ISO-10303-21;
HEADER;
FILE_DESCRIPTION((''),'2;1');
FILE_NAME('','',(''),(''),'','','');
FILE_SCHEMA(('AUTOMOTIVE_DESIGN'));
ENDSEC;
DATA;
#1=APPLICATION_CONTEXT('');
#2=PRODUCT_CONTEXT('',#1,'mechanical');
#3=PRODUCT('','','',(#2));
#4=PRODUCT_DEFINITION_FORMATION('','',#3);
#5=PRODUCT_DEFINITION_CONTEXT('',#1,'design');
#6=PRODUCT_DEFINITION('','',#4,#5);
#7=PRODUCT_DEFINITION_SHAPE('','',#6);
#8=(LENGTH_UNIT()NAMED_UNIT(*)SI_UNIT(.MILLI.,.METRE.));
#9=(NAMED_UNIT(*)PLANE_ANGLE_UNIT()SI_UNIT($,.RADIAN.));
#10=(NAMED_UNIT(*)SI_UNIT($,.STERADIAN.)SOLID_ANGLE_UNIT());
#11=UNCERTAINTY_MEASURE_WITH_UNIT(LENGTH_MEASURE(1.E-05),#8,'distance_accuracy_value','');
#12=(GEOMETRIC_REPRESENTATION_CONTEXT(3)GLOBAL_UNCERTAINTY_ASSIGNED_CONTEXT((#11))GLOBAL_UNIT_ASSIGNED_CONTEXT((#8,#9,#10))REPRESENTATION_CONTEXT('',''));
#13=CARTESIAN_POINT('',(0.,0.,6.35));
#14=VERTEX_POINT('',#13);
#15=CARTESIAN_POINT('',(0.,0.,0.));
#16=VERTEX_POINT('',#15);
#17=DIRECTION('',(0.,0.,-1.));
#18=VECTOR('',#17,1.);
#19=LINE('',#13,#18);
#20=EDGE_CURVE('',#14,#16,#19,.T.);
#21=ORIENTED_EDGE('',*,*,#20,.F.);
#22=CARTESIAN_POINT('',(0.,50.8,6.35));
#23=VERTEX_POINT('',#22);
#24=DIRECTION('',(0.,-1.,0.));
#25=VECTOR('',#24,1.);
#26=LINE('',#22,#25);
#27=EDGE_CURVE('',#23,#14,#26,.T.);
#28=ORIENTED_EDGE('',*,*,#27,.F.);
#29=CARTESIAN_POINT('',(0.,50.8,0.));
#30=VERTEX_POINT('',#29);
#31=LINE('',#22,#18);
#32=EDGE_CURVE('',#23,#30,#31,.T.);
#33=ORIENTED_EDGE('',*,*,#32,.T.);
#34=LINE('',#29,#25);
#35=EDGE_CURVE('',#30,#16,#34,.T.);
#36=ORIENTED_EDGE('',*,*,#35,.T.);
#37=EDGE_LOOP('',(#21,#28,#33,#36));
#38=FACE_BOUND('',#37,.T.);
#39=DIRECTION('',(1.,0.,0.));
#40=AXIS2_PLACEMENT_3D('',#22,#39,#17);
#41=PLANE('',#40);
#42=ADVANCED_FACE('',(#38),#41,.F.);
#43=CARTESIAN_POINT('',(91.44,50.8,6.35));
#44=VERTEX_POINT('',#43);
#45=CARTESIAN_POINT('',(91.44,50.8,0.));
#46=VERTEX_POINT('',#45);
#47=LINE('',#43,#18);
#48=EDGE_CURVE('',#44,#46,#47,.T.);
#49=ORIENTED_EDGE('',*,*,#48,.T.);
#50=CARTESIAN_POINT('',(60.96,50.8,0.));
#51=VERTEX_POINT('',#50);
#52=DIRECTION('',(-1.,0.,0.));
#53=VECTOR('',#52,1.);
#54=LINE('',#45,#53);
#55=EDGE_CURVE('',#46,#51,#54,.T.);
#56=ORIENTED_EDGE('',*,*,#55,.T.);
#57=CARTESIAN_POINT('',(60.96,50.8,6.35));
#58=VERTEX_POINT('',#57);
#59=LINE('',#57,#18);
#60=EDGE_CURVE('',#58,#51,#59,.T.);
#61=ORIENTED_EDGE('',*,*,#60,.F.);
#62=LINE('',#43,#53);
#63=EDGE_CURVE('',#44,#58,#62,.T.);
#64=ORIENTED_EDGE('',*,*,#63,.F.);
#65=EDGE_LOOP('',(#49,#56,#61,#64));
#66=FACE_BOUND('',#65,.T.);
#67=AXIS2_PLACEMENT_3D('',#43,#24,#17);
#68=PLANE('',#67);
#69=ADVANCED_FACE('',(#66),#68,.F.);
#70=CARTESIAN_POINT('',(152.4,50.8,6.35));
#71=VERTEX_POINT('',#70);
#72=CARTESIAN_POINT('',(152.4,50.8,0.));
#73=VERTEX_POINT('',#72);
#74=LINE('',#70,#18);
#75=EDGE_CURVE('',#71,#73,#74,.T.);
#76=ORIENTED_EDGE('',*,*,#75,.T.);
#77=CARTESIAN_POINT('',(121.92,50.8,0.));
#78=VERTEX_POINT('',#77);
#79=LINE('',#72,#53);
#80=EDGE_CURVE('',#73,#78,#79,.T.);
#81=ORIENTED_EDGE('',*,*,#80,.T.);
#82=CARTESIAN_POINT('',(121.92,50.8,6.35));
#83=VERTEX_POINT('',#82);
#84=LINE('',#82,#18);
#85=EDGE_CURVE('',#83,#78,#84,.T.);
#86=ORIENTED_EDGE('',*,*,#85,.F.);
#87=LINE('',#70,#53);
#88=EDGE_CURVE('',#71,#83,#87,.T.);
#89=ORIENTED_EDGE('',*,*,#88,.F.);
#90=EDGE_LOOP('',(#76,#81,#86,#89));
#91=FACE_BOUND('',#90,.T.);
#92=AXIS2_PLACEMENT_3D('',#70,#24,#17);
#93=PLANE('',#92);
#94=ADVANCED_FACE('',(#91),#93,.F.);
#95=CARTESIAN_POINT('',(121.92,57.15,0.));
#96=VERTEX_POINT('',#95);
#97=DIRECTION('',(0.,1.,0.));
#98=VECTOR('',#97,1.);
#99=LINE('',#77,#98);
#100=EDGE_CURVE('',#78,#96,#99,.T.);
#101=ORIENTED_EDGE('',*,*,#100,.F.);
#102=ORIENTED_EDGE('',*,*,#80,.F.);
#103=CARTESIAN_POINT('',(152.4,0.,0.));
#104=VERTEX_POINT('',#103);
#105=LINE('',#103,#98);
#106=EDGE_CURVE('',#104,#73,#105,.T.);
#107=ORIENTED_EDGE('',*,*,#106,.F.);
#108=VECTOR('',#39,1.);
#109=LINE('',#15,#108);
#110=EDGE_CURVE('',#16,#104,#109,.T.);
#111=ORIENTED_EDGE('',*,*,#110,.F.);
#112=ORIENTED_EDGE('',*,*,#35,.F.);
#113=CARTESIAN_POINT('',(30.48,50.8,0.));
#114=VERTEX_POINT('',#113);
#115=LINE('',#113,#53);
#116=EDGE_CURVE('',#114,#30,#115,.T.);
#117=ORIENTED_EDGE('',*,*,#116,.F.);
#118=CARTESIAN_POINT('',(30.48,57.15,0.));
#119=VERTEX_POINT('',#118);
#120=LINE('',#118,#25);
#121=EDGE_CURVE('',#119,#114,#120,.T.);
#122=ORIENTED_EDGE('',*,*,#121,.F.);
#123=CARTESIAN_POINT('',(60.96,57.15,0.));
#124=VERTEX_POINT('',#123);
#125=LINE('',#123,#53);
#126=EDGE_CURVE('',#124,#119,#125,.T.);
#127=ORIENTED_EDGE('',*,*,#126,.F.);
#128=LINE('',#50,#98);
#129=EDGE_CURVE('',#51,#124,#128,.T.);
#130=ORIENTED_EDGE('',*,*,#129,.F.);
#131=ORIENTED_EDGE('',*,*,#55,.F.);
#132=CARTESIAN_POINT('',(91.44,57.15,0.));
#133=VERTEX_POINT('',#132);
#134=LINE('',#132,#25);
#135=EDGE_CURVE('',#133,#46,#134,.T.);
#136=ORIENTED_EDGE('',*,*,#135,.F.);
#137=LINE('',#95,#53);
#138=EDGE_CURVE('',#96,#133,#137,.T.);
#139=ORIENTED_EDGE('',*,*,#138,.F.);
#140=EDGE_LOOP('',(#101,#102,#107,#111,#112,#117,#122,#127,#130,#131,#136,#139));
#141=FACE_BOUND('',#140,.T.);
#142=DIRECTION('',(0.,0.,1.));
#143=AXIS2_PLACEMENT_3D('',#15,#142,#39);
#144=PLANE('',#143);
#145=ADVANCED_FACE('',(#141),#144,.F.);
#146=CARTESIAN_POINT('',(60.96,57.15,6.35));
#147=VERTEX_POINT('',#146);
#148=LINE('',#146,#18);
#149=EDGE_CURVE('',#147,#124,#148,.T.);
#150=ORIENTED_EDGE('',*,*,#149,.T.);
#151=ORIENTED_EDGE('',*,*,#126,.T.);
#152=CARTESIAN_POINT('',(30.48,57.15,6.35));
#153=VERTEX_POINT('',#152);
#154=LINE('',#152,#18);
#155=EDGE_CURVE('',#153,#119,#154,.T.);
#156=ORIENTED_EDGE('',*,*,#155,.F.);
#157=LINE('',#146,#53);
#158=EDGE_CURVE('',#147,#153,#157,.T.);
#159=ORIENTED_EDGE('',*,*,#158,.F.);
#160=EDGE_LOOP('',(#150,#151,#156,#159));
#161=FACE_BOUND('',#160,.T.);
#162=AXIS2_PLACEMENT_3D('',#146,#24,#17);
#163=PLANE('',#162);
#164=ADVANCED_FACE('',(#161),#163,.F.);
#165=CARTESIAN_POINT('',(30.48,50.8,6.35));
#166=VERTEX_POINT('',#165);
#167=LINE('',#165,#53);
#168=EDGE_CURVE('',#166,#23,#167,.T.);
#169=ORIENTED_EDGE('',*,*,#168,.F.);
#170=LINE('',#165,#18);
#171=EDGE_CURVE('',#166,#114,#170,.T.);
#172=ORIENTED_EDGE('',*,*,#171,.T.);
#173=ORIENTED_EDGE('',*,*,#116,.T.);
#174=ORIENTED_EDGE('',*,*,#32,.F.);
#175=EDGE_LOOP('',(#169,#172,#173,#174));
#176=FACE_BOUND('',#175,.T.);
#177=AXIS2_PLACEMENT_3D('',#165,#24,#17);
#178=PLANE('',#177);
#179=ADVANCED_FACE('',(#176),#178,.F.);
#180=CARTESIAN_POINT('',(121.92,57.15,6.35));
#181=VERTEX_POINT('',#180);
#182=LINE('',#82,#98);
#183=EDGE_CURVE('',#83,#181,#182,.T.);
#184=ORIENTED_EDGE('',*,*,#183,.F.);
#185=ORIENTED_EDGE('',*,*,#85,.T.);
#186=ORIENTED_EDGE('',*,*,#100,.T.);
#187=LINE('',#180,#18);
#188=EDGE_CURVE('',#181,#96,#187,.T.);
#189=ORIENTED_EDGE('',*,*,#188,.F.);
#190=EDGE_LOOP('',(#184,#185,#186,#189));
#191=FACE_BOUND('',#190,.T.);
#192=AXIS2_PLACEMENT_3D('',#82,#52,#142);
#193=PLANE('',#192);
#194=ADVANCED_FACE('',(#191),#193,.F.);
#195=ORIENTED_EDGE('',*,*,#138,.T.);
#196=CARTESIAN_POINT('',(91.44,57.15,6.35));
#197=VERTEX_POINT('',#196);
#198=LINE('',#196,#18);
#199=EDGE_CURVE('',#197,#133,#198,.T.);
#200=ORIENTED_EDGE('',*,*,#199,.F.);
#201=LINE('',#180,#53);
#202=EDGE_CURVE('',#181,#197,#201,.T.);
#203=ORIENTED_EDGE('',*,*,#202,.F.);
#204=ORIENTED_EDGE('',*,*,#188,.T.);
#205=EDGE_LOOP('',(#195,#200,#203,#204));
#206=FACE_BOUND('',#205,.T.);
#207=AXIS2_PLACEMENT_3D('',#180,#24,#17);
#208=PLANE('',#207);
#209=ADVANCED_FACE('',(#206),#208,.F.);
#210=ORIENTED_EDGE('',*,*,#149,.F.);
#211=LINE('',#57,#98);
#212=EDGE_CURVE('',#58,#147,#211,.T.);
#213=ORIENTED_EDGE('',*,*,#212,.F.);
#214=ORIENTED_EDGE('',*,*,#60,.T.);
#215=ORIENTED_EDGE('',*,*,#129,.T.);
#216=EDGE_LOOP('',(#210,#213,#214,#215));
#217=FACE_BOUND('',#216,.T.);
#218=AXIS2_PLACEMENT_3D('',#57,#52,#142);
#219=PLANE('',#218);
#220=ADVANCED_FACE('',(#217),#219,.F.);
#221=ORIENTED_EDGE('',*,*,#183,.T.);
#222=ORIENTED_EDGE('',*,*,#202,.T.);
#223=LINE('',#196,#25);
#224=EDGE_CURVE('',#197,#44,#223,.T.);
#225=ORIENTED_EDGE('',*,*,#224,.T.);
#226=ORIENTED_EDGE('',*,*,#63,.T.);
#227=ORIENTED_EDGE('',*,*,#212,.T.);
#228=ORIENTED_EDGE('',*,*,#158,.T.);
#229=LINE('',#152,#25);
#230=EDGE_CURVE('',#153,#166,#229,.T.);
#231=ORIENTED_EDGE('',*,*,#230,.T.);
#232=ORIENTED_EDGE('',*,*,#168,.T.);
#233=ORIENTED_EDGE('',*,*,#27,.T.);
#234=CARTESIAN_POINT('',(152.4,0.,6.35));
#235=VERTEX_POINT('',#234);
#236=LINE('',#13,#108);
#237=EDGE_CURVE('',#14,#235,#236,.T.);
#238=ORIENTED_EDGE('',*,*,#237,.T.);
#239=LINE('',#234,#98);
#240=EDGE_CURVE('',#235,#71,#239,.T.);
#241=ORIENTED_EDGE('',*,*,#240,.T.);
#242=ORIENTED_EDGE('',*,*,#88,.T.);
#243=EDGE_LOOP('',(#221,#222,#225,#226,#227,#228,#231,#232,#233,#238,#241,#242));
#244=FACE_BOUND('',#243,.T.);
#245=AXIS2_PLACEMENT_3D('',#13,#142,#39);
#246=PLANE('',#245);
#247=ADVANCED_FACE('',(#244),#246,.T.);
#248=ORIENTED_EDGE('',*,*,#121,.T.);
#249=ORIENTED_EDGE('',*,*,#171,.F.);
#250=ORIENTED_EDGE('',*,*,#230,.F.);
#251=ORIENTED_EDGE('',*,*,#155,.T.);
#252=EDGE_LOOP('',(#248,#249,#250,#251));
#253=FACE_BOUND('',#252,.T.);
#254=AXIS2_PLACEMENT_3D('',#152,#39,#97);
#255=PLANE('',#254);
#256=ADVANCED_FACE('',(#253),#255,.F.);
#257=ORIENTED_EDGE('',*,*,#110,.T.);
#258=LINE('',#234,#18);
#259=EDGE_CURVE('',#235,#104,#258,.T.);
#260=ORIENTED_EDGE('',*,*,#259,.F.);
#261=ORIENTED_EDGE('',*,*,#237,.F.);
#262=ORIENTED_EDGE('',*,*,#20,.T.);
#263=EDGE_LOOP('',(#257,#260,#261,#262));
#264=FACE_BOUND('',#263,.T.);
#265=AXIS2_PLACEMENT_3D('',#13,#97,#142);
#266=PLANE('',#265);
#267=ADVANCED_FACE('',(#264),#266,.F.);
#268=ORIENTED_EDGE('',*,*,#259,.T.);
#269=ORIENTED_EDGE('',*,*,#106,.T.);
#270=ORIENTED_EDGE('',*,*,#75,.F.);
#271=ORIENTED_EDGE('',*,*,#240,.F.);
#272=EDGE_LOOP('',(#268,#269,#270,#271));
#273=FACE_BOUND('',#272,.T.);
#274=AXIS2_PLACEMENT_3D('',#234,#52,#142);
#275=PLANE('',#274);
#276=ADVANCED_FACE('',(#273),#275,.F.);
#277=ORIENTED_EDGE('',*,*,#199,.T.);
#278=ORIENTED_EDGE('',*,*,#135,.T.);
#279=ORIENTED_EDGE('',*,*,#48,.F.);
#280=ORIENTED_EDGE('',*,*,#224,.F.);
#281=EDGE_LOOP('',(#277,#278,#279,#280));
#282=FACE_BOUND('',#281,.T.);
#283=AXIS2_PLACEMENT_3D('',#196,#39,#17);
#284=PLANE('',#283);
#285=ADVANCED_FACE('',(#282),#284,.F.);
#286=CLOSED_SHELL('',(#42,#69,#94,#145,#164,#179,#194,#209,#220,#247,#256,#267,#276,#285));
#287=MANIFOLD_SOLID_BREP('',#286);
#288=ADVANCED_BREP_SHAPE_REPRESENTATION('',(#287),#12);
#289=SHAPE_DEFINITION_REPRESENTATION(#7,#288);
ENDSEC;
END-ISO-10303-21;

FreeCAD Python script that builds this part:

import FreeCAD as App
import Part
import Sketcher
from FreeCAD import Vector
Q = App.Units.Quantity


def add_polygon(sketch, points):
    """Adds a closed chain of lines whose ends are joined by coincident constraints."""
    first, n = sketch.GeometryCount, len(points)
    for a, b in zip(points, points[1:] + points[:1]):
        sketch.addGeometry(Part.LineSegment(App.Vector(*a, 0), App.Vector(*b, 0)), False)
    for i in range(n):
        sketch.addConstraint(Sketcher.Constraint("Coincident", first + i, 2, first + (i + 1) % n, 1))

doc = App.newDocument("Part")
body = doc.addObject("PartDesign::Body", "Body")

# Sketch on XY plane
sketch1 = body.newObject("Sketcher::SketchObject", "Sketch")
sketch1.AttachmentSupport = (doc.getObject("XY_Plane"), [""])
sketch1.MapMode = "FlatFace"
add_polygon(sketch1, [(0, 51), (0, 0), (152, 0), (152, 51), (122, 51), (122, 57), (91, 57), (91, 51), (61, 51), (61, 57), (30, 57), (30, 51)])  # lines 0-11
sketch1.addConstraint(Sketcher.Constraint("Vertical", 0))
sketch1.addConstraint(Sketcher.Constraint("Horizontal", 1))
sketch1.addConstraint(Sketcher.Constraint("Vertical", 2))
sketch1.addConstraint(Sketcher.Constraint("Horizontal", 3))
sketch1.addConstraint(Sketcher.Constraint("Vertical", 4))
sketch1.addConstraint(Sketcher.Constraint("Horizontal", 5))
sketch1.addConstraint(Sketcher.Constraint("Vertical", 6))
sketch1.addConstraint(Sketcher.Constraint("Horizontal", 7))
sketch1.addConstraint(Sketcher.Constraint("Vertical", 8))
sketch1.addConstraint(Sketcher.Constraint("Horizontal", 9))
sketch1.addConstraint(Sketcher.Constraint("Vertical", 10))
sketch1.addConstraint(Sketcher.Constraint("Horizontal", 11))
sketch1.addConstraint(Sketcher.Constraint("Coincident", 0, 2, -1, 1))
sketch1.addConstraint(Sketcher.Constraint("Horizontal", 3, 2, 6, 2))
sketch1.addConstraint(Sketcher.Constraint("Horizontal", 5, 2, 8, 2))
sketch1.addConstraint(Sketcher.Constraint("Horizontal", 7, 2, 10, 2))
sketch1.addConstraint(Sketcher.Constraint("Equal", 3, 5))
sketch1.addConstraint(Sketcher.Constraint("Equal", 5, 7))
sketch1.addConstraint(Sketcher.Constraint("Equal", 7, 9))
sketch1.addConstraint(Sketcher.Constraint("Equal", 9, 11))
sketch1.addConstraint(Sketcher.Constraint("DistanceX", 1, 1, 1, 2, Q("6 in")))
sketch1.addConstraint(Sketcher.Constraint("DistanceY", 0, 2, 0, 1, Q("2 in")))
sketch1.addConstraint(Sketcher.Constraint("DistanceY", 4, 1, 4, 2, Q("0.25 in")))
pad1 = body.newObject("PartDesign::Pad", "Pad")
pad1.Profile = sketch1
pad1.Length = Q("0.25 in")

doc.recompute()
